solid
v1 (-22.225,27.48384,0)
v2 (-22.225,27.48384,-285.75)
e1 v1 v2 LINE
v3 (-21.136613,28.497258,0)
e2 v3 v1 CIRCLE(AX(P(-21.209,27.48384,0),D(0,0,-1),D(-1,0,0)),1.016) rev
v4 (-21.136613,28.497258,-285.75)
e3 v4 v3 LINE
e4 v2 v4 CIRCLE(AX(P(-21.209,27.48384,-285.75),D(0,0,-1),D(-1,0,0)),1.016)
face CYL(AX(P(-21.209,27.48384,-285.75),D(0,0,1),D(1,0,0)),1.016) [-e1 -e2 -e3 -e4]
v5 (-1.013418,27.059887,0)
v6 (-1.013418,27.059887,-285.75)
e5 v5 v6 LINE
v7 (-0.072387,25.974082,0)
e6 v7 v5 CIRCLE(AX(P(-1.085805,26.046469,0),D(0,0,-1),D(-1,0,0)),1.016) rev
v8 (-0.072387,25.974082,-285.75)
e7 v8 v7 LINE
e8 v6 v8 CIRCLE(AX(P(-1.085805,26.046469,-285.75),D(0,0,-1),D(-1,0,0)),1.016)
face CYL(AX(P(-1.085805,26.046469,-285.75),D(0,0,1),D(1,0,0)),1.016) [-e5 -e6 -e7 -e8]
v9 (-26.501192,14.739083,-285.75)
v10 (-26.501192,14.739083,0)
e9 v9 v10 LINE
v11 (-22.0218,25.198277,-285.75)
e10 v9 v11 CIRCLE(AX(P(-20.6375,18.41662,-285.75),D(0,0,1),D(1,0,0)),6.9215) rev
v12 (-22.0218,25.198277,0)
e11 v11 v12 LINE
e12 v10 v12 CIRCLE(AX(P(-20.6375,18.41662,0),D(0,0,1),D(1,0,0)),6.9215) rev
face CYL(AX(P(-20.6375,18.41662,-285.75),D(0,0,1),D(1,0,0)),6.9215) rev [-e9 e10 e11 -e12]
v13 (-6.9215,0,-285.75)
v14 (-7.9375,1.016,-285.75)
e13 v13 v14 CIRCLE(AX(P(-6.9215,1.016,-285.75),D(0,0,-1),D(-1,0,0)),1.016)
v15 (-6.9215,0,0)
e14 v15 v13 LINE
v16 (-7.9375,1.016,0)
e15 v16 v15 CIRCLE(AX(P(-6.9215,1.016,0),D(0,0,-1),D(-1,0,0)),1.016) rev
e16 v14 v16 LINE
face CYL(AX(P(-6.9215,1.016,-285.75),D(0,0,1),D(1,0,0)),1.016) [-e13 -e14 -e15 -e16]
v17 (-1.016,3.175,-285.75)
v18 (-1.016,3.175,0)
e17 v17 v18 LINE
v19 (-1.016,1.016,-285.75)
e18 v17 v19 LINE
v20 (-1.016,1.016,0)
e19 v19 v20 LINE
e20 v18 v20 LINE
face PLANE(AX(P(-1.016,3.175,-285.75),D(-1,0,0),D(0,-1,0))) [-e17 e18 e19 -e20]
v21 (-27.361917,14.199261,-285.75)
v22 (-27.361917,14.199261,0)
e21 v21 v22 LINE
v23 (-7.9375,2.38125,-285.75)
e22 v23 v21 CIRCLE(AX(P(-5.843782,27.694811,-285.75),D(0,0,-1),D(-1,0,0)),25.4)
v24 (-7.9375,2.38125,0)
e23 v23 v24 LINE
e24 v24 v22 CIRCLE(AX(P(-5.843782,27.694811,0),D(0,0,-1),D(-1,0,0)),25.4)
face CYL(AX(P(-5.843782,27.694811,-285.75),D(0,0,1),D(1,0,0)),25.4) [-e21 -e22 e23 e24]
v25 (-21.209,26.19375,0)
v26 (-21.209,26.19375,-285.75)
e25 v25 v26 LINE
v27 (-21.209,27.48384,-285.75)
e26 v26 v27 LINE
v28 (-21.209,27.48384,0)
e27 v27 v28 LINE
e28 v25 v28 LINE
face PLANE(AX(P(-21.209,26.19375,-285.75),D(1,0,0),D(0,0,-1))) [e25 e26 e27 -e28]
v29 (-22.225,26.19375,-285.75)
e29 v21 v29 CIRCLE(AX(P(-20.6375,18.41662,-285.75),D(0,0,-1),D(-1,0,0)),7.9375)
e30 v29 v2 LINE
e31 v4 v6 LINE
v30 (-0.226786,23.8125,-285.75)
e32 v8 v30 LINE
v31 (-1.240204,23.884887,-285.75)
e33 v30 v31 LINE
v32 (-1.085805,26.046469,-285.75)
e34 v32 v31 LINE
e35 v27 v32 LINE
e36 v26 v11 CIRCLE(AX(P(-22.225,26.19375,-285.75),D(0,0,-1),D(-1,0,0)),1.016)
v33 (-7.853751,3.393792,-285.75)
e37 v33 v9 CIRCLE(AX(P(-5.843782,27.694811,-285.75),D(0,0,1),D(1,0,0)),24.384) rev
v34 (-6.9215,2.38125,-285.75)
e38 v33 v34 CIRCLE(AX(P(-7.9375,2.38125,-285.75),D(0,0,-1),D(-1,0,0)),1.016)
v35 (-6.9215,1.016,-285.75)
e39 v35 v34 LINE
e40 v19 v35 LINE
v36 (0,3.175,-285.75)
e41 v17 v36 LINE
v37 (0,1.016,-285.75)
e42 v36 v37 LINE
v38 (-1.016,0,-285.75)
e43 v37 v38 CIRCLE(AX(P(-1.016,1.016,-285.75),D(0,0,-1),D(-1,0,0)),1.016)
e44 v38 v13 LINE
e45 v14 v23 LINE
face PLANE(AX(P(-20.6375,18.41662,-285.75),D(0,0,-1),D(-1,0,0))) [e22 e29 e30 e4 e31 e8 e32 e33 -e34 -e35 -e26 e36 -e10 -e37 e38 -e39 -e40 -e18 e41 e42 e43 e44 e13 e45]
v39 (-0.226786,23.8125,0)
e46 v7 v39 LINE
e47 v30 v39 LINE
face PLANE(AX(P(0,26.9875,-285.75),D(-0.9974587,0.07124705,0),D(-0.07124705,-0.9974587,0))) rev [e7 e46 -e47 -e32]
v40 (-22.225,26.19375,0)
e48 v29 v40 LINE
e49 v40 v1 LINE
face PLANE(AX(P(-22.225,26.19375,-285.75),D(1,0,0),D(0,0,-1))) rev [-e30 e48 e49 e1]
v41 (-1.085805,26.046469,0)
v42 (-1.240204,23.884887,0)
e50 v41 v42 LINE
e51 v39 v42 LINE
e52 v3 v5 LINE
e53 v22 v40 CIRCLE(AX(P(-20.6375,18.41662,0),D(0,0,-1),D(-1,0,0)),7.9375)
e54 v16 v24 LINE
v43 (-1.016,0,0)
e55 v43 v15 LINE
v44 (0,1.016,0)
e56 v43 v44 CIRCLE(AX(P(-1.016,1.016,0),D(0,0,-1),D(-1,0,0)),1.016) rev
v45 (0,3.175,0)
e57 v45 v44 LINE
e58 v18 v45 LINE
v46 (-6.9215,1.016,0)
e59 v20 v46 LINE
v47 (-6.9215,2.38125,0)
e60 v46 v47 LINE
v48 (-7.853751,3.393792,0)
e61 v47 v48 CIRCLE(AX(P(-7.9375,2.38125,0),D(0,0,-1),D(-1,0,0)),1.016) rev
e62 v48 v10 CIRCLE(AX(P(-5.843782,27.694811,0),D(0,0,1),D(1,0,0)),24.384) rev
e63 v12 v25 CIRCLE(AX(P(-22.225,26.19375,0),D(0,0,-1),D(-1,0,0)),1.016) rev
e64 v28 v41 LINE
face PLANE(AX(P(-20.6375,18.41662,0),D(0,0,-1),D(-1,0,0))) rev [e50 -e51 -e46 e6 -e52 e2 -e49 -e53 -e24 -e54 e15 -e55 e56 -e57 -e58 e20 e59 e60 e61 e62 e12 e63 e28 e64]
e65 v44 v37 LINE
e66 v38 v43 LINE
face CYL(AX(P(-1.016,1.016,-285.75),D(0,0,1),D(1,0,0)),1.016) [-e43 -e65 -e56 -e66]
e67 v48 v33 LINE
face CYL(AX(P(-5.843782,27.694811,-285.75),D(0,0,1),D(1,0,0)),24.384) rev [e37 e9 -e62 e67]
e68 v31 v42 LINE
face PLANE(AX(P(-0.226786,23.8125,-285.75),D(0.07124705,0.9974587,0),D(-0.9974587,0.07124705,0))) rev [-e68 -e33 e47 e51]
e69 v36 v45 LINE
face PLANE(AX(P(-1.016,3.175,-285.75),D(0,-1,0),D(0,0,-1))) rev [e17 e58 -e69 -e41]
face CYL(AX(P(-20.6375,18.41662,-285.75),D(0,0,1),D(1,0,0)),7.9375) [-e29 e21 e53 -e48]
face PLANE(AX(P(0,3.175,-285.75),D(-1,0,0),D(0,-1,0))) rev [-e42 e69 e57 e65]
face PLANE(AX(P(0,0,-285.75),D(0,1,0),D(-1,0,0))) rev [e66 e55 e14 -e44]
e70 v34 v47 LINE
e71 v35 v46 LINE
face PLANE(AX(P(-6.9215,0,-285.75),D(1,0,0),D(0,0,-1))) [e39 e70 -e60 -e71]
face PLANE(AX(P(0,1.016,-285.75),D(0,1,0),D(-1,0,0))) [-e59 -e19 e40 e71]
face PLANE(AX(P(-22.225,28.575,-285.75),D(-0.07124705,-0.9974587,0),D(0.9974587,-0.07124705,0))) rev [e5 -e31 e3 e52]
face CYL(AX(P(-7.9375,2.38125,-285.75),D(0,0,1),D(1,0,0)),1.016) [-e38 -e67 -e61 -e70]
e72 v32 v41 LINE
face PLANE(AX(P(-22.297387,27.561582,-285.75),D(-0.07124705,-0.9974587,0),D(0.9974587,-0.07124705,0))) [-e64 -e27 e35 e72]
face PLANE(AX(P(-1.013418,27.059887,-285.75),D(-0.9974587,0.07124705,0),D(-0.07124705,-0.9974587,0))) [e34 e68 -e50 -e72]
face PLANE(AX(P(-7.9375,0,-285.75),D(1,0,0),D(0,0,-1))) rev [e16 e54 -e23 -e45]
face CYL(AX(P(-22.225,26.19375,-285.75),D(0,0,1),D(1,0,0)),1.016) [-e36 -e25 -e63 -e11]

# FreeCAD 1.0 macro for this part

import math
import FreeCAD as App
import Part
import Sketcher
Q = App.Units.Quantity


def edges_at(feature, points):
    """Names of the edges that pass closest to the given points."""
    edges = feature.Shape.Edges
    near = lambda p: min(range(len(edges)), key=lambda i: edges[i].distToShape(Part.Vertex(*p))[0])
    return sorted({f"Edge{near(p) + 1}" for p in points})

doc = App.newDocument("Part")
body = doc.addObject("PartDesign::Body", "Body")

sketch1 = body.newObject("Sketcher::SketchObject", "Sketch")
sketch1.AttachmentSupport = (doc.getObject("XY_Plane"), [""])
sketch1.MapMode = "FlatFace"
sketch1.addGeometry(Part.LineSegment(App.Vector(0, 0, 0), App.Vector(0, 3.2, 0)), False)
sketch1.addGeometry(Part.LineSegment(App.Vector(0, 3.2, 0), App.Vector(-1, 3.2, 0)), False)
sketch1.addGeometry(Part.LineSegment(App.Vector(-1, 3.2, 0), App.Vector(-1, 1, 0)), False)
sketch1.addGeometry(Part.LineSegment(App.Vector(-1, 1, 0), App.Vector(-6.9, 1, 0)), False)
sketch1.addGeometry(Part.LineSegment(App.Vector(-6.9, 1, 0), App.Vector(-6.9, 3.3, 0)), False)
sketch1.addGeometry(Part.ArcOfCircle(Part.Circle(App.Vector(-5.8, 27.7, 0), App.Vector(0, 0, 1), 24.4), math.radians(-148), math.radians(-93)), False)
sketch1.addGeometry(Part.ArcOfCircle(Part.Circle(App.Vector(-20.6, 18.4, 0), App.Vector(0, 0, 1), 6.9), math.radians(95), math.radians(212)), False)
sketch1.addGeometry(Part.LineSegment(App.Vector(-21.2, 25.3, 0), App.Vector(-21.2, 27.5, 0)), False)
sketch1.addGeometry(Part.LineSegment(App.Vector(-21.2, 27.5, 0), App.Vector(-1.1, 26, 0)), False)
sketch1.addGeometry(Part.LineSegment(App.Vector(-1.1, 26, 0), App.Vector(-1.2, 23.9, 0)), False)
sketch1.addGeometry(Part.LineSegment(App.Vector(-1.2, 23.9, 0), App.Vector(-0.2, 23.8, 0)), False)
sketch1.addGeometry(Part.LineSegment(App.Vector(-0.2, 23.8, 0), App.Vector(0, 27, 0)), False)
sketch1.addGeometry(Part.LineSegment(App.Vector(0, 27, 0), App.Vector(-22.2, 28.6, 0)), False)
sketch1.addGeometry(Part.LineSegment(App.Vector(-22.2, 28.6, 0), App.Vector(-22.2, 26.2, 0)), False)
sketch1.addGeometry(Part.ArcOfCircle(Part.Circle(App.Vector(-20.6, 18.4, 0), App.Vector(0, 0, 1), 7.9), math.radians(102), math.radians(212)), False)
sketch1.addGeometry(Part.ArcOfCircle(Part.Circle(App.Vector(-5.8, 27.7, 0), App.Vector(0, 0, 1), 25.4), math.radians(-148), math.radians(-95)), False)
sketch1.addGeometry(Part.LineSegment(App.Vector(-7.9, 2.4, 0), App.Vector(-7.9, 0, 0)), False)
sketch1.addGeometry(Part.LineSegment(App.Vector(-7.9, 0, 0), App.Vector(0, 0, 0)), False)
sketch1.addConstraint(Sketcher.Constraint("Coincident", 0, 2, 1, 1))
sketch1.addConstraint(Sketcher.Constraint("Coincident", 1, 2, 2, 1))
sketch1.addConstraint(Sketcher.Constraint("Coincident", 2, 2, 3, 1))
sketch1.addConstraint(Sketcher.Constraint("Coincident", 3, 2, 4, 1))
sketch1.addConstraint(Sketcher.Constraint("Coincident", 4, 2, 5, 2))
sketch1.addConstraint(Sketcher.Constraint("Tangent", 5, 1, 6, 2))
sketch1.addConstraint(Sketcher.Constraint("Coincident", 6, 1, 7, 1))
sketch1.addConstraint(Sketcher.Constraint("Coincident", 7, 2, 8, 1))
sketch1.addConstraint(Sketcher.Constraint("Coincident", 8, 2, 9, 1))
sketch1.addConstraint(Sketcher.Constraint("Coincident", 9, 2, 10, 1))
sketch1.addConstraint(Sketcher.Constraint("Coincident", 10, 2, 11, 1))
sketch1.addConstraint(Sketcher.Constraint("Coincident", 11, 2, 12, 1))
sketch1.addConstraint(Sketcher.Constraint("Coincident", 12, 2, 13, 1))
sketch1.addConstraint(Sketcher.Constraint("Coincident", 13, 2, 14, 1))
sketch1.addConstraint(Sketcher.Constraint("Tangent", 14, 2, 15, 1))
sketch1.addConstraint(Sketcher.Constraint("Coincident", 15, 2, 16, 1))
sketch1.addConstraint(Sketcher.Constraint("Coincident", 16, 2, 17, 1))
sketch1.addConstraint(Sketcher.Constraint("Coincident", 17, 2, 0, 1))
sketch1.addConstraint(Sketcher.Constraint("Vertical", 0))
sketch1.addConstraint(Sketcher.Constraint("Horizontal", 1))
sketch1.addConstraint(Sketcher.Constraint("Vertical", 2))
sketch1.addConstraint(Sketcher.Constraint("Horizontal", 3))
sketch1.addConstraint(Sketcher.Constraint("Vertical", 4))
sketch1.addConstraint(Sketcher.Constraint("Vertical", 7))
sketch1.addConstraint(Sketcher.Constraint("Vertical", 13))
sketch1.addConstraint(Sketcher.Constraint("Vertical", 16))
sketch1.addConstraint(Sketcher.Constraint("Horizontal", 17))
sketch1.addConstraint(Sketcher.Constraint("Coincident", 17, 2, -1, 1))
sketch1.addConstraint(Sketcher.Constraint("Coincident", 14, 3, 6, 3))
sketch1.addConstraint(Sketcher.Constraint("Coincident", 15, 3, 5, 3))
sketch1.addConstraint(Sketcher.Constraint("PointOnObject", 11, 2, -2))
sketch1.addConstraint(Sketcher.Constraint("Perpendicular", 8, 9))
sketch1.addConstraint(Sketcher.Constraint("Perpendicular", 9, 10))
sketch1.addConstraint(Sketcher.Constraint("Perpendicular", 10, 11))
sketch1.addConstraint(Sketcher.Constraint("Perpendicular", 11, 12))
sketch1.addConstraint(Sketcher.Constraint("Equal", 13, 16))
sketch1.addConstraint(Sketcher.Constraint("Radius", 15, Q("1 in")))
sketch1.addConstraint(Sketcher.Constraint("Radius", 5, Q("0.96 in")))
sketch1.addConstraint(Sketcher.Constraint("Radius", 14, Q("0.3125 in")))
sketch1.addConstraint(Sketcher.Constraint("DistanceX", 1, 2, 1, 1, Q("0.04 in")))
sketch1.addConstraint(Sketcher.Constraint("Distance", 10, Q("0.04 in")))
sketch1.addConstraint(Sketcher.Constraint("DistanceX", 17, 1, 17, 2, Q("0.3125 in")))
sketch1.addConstraint(Sketcher.Constraint("DistanceY", 0, 1, 0, 2, Q("0.125 in")))
sketch1.addConstraint(Sketcher.Constraint("DistanceY", 2, 2, 2, 1, Q("0.085 in")))
sketch1.addConstraint(Sketcher.Constraint("DistanceY", 13, 2, 13, 1, Q("0.09375 in")))
sketch1.addConstraint(Sketcher.Constraint("DistanceX", 6, 3, 3, 2, Q("0.54 in")))
sketch1.addConstraint(Sketcher.Constraint("DistanceX", 12, 2, 7, 2, Q("0.04 in")))
sketch1.addConstraint(Sketcher.Constraint("DistanceX", 15, 2, 4, 2, Q("0.04 in")))
sketch1.addConstraint(Sketcher.Constraint("DistanceX", 6, 1, -1, 1, Q("0.835 in")))
sketch1.addConstraint(Sketcher.Constraint("DistanceY", -1, 1, 10, 2, Q("0.9375 in")))
sketch1.addConstraint(Sketcher.Constraint("DistanceY", -1, 1, 11, 2, Q("1.0625 in")))
sketch1.addConstraint(Sketcher.Constraint("DistanceY", -1, 1, 12, 2, Q("1.125 in")))
sketch1.addConstraint(Sketcher.Constraint("DistanceX", 9, 2, 8, 2, 0.154399))
pad1 = body.newObject("PartDesign::Pad", "Pad")
pad1.Profile = sketch1
pad1.Length = Q("11.25 in")
pad1.Reversed = True
doc.recompute()

fillet = body.newObject("PartDesign::Fillet", "Fillet")
fillet.Base = (pad1, edges_at(pad1, [
    (-21.209, 25.314, -142.875),
    (-6.921, 3.335, -142.875),
    (0, 0, -142.875),
    (-7.938, 0, -142.875),
    (-22.225, 28.575, -142.875),
    (0, 26.988, -142.875),
]))
fillet.Radius = Q("0.04 in")

doc.recompute()
